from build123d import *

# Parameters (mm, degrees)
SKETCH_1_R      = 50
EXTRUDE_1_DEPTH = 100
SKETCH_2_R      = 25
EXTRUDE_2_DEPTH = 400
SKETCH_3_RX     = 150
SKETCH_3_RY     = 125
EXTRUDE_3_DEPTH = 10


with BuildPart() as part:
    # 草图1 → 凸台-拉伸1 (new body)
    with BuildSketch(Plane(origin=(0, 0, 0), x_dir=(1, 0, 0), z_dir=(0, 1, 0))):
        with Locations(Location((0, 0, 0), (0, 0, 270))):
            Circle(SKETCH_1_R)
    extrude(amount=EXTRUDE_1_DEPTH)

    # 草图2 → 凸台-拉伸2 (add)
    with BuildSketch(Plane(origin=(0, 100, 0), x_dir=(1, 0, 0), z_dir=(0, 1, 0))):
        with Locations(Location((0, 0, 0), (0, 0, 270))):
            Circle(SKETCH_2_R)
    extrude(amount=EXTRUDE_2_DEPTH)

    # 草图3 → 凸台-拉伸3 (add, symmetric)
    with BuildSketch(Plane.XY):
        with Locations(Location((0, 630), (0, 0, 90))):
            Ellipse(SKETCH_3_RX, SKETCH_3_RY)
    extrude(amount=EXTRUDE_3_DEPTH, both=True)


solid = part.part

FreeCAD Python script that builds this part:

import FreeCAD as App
import Part
import Sketcher
Q = App.Units.Quantity

doc = App.newDocument("Part")
body = doc.addObject("PartDesign::Body", "Body")

sketch1 = doc.addObject("Sketcher::SketchObject", "Sketch")
body.addObject(sketch1)
sketch1.AttachmentSupport = (doc.XZ_Plane, [""])
sketch1.MapMode = "FlatFace"
sketch1.addGeometry(Part.Circle(App.Vector(0, 0, 0), App.Vector(0, 0, 1), 50), False)
sketch1.addConstraint(Sketcher.Constraint("Coincident", 0, 3, -1, 1))
sketch1.addConstraint(Sketcher.Constraint("Diameter", 0, Q("100 mm")))
pad1 = doc.addObject("PartDesign::Pad", "Pad")
body.addObject(pad1)
pad1.Profile = sketch1
pad1.Length = 100
pad1.Reversed = True

sketch2 = doc.addObject("Sketcher::SketchObject", "Sketch001")
body.addObject(sketch2)
sketch2.AttachmentSupport = (doc.XZ_Plane, [""])
sketch2.MapMode = "FlatFace"
sketch2.AttachmentOffset = App.Placement(App.Vector(0, 0, -100), App.Rotation())
sketch2.addGeometry(Part.Circle(App.Vector(0, 0, 0), App.Vector(0, 0, 1), 25), False)
sketch2.addConstraint(Sketcher.Constraint("Coincident", 0, 3, -1, 1))
sketch2.addConstraint(Sketcher.Constraint("Diameter", 0, Q("50 mm")))
pad2 = doc.addObject("PartDesign::Pad", "Pad001")
body.addObject(pad2)
pad2.Profile = sketch2
pad2.Length = 400
pad2.Reversed = True

sketch3 = doc.addObject("Sketcher::SketchObject", "Sketch002")
body.addObject(sketch3)
sketch3.AttachmentSupport = (doc.XY_Plane, [""])
sketch3.MapMode = "FlatFace"
sketch3.addGeometry(Part.Ellipse(App.Vector(0, 780, 0), App.Vector(-125, 630, 0), App.Vector(0, 630, 0)), False)
sketch3.addConstraint(Sketcher.Constraint("Block", 0))
pad3 = doc.addObject("PartDesign::Pad", "Pad002")
body.addObject(pad3)
pad3.Profile = sketch3
pad3.Length = 20
pad3.Midplane = True

doc.recompute()
